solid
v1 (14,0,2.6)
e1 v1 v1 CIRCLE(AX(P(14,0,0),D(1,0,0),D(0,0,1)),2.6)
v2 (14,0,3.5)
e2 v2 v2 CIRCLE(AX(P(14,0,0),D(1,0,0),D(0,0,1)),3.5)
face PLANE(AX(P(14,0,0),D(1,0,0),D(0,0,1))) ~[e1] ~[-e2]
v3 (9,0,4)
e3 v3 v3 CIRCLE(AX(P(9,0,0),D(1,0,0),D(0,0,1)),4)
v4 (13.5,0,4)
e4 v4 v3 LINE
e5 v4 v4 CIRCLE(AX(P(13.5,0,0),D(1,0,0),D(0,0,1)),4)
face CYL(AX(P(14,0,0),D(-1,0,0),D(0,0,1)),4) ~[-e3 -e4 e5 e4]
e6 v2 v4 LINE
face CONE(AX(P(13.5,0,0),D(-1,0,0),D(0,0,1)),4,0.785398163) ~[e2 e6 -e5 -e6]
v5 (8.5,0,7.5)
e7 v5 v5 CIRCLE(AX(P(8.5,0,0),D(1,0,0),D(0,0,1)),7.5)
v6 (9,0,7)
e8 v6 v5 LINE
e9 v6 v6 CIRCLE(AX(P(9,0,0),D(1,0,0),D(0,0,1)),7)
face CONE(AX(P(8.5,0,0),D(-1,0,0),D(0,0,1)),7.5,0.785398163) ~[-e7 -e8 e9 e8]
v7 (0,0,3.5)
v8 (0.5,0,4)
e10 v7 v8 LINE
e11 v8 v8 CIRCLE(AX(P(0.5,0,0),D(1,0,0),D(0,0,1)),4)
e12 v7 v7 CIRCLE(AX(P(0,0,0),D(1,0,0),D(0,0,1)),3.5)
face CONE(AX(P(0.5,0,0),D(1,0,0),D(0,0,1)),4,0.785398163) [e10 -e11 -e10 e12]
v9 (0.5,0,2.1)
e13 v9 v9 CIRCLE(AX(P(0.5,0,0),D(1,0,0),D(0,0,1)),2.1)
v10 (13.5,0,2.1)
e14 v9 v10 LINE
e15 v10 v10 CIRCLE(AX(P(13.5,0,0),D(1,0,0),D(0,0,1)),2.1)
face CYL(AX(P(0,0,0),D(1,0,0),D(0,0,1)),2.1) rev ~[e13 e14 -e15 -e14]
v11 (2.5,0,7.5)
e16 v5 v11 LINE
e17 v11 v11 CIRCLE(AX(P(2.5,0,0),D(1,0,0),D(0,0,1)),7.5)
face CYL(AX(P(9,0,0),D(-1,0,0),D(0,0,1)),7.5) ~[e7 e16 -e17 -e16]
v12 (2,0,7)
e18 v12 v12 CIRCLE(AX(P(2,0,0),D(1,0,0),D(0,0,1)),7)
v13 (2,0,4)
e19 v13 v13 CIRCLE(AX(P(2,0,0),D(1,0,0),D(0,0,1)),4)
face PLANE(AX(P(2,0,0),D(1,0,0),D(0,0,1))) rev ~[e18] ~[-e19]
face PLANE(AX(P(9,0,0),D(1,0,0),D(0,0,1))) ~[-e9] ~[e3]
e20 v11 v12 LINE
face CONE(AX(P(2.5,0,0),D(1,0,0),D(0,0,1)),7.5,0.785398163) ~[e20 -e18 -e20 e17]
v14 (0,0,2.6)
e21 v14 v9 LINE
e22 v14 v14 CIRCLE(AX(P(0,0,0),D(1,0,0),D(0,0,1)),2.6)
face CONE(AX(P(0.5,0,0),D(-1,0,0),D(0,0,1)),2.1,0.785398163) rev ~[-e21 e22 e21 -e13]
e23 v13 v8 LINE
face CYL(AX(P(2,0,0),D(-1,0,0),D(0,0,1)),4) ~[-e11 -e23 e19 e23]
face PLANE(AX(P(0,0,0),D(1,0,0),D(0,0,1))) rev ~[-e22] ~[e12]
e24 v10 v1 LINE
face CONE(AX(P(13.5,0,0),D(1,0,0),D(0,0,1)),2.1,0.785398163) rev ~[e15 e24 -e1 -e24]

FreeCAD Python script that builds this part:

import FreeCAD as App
import Part
import Sketcher

V = App.Vector
Q = App.Units.Quantity


def edges_at(feature, points):
    """Names of the edges that pass closest to the given points."""
    edges = feature.Shape.Edges
    near = lambda p: min(range(len(edges)), key=lambda i: edges[i].distToShape(Part.Vertex(*p))[0])
    return sorted({f"Edge{near(p) + 1}" for p in points})


def add_polygon(sketch, points):
    """Adds a closed chain of lines whose ends are joined by coincident constraints."""
    first, n = sketch.GeometryCount, len(points)
    for a, b in zip(points, points[1:] + points[:1]):
        sketch.addGeometry(Part.LineSegment(App.Vector(*a, 0), App.Vector(*b, 0)), False)
    for i in range(n):
        sketch.addConstraint(Sketcher.Constraint("Coincident", first + i, 2, first + (i + 1) % n, 1))

doc = App.newDocument("Part")
body = doc.addObject("PartDesign::Body", "Body")

# Sketch on XZ plane
sketch1 = body.newObject("Sketcher::SketchObject", "Sketch")
sketch1.AttachmentSupport = (doc.getObject("XZ_Plane"), [""])
sketch1.MapMode = "FlatFace"
add_polygon(sketch1, [(0, 4), (0, 2.1), (14, 2.1), (14, 4), (9, 4), (9, 7.5), (2, 7.5), (2, 4)])  # lines 0-7
sketch1.addConstraint(Sketcher.Constraint("Vertical", 0))
sketch1.addConstraint(Sketcher.Constraint("Horizontal", 1))
sketch1.addConstraint(Sketcher.Constraint("Vertical", 2))
sketch1.addConstraint(Sketcher.Constraint("Horizontal", 3))
sketch1.addConstraint(Sketcher.Constraint("Vertical", 4))
sketch1.addConstraint(Sketcher.Constraint("Horizontal", 5))
sketch1.addConstraint(Sketcher.Constraint("Vertical", 6))
sketch1.addConstraint(Sketcher.Constraint("Horizontal", 7))
sketch1.addConstraint(Sketcher.Constraint("PointOnObject", 0, 2, -2))
sketch1.addConstraint(Sketcher.Constraint("Horizontal", 3, 2, 6, 2))
sketch1.addConstraint(Sketcher.Constraint("DistanceX", 1, 1, 1, 2, Q("14 mm")))
sketch1.addConstraint(Sketcher.Constraint("DistanceX", 3, 2, 3, 1, Q("5 mm")))
sketch1.addConstraint(Sketcher.Constraint("DistanceX", 5, 2, 5, 1, Q("7 mm")))
sketch1.addConstraint(Sketcher.Constraint("DistanceY", 0, 2, 0, 1, Q("1.9 mm")))
sketch1.addConstraint(Sketcher.Constraint("DistanceY", 4, 1, 4, 2, Q("3.5 mm")))
sketch1.addConstraint(Sketcher.Constraint("DistanceY", -1, 1, 2, 2, Q("4 mm")))
revolution = body.newObject("PartDesign::Revolution", "Revolution")
revolution.Profile = sketch1
revolution.ReferenceAxis = (sketch1, ["H_Axis"])
revolution.Angle = 360
doc.recompute()

chamfer = body.newObject("PartDesign::Chamfer", "Chamfer")
chamfer.Base = (revolution, edges_at(revolution, [
    (9, 0, -7.5),
    (2, 0, -7.5),
    (5.5, 0, 7.5),
    (0, 0, -2.1),
    (14, 0, -2.1),
    (7, 0, 2.1),
    (14, 0, -4),
    (0, 0, -4),
]))
chamfer.Size = 0.5

doc.recompute()
